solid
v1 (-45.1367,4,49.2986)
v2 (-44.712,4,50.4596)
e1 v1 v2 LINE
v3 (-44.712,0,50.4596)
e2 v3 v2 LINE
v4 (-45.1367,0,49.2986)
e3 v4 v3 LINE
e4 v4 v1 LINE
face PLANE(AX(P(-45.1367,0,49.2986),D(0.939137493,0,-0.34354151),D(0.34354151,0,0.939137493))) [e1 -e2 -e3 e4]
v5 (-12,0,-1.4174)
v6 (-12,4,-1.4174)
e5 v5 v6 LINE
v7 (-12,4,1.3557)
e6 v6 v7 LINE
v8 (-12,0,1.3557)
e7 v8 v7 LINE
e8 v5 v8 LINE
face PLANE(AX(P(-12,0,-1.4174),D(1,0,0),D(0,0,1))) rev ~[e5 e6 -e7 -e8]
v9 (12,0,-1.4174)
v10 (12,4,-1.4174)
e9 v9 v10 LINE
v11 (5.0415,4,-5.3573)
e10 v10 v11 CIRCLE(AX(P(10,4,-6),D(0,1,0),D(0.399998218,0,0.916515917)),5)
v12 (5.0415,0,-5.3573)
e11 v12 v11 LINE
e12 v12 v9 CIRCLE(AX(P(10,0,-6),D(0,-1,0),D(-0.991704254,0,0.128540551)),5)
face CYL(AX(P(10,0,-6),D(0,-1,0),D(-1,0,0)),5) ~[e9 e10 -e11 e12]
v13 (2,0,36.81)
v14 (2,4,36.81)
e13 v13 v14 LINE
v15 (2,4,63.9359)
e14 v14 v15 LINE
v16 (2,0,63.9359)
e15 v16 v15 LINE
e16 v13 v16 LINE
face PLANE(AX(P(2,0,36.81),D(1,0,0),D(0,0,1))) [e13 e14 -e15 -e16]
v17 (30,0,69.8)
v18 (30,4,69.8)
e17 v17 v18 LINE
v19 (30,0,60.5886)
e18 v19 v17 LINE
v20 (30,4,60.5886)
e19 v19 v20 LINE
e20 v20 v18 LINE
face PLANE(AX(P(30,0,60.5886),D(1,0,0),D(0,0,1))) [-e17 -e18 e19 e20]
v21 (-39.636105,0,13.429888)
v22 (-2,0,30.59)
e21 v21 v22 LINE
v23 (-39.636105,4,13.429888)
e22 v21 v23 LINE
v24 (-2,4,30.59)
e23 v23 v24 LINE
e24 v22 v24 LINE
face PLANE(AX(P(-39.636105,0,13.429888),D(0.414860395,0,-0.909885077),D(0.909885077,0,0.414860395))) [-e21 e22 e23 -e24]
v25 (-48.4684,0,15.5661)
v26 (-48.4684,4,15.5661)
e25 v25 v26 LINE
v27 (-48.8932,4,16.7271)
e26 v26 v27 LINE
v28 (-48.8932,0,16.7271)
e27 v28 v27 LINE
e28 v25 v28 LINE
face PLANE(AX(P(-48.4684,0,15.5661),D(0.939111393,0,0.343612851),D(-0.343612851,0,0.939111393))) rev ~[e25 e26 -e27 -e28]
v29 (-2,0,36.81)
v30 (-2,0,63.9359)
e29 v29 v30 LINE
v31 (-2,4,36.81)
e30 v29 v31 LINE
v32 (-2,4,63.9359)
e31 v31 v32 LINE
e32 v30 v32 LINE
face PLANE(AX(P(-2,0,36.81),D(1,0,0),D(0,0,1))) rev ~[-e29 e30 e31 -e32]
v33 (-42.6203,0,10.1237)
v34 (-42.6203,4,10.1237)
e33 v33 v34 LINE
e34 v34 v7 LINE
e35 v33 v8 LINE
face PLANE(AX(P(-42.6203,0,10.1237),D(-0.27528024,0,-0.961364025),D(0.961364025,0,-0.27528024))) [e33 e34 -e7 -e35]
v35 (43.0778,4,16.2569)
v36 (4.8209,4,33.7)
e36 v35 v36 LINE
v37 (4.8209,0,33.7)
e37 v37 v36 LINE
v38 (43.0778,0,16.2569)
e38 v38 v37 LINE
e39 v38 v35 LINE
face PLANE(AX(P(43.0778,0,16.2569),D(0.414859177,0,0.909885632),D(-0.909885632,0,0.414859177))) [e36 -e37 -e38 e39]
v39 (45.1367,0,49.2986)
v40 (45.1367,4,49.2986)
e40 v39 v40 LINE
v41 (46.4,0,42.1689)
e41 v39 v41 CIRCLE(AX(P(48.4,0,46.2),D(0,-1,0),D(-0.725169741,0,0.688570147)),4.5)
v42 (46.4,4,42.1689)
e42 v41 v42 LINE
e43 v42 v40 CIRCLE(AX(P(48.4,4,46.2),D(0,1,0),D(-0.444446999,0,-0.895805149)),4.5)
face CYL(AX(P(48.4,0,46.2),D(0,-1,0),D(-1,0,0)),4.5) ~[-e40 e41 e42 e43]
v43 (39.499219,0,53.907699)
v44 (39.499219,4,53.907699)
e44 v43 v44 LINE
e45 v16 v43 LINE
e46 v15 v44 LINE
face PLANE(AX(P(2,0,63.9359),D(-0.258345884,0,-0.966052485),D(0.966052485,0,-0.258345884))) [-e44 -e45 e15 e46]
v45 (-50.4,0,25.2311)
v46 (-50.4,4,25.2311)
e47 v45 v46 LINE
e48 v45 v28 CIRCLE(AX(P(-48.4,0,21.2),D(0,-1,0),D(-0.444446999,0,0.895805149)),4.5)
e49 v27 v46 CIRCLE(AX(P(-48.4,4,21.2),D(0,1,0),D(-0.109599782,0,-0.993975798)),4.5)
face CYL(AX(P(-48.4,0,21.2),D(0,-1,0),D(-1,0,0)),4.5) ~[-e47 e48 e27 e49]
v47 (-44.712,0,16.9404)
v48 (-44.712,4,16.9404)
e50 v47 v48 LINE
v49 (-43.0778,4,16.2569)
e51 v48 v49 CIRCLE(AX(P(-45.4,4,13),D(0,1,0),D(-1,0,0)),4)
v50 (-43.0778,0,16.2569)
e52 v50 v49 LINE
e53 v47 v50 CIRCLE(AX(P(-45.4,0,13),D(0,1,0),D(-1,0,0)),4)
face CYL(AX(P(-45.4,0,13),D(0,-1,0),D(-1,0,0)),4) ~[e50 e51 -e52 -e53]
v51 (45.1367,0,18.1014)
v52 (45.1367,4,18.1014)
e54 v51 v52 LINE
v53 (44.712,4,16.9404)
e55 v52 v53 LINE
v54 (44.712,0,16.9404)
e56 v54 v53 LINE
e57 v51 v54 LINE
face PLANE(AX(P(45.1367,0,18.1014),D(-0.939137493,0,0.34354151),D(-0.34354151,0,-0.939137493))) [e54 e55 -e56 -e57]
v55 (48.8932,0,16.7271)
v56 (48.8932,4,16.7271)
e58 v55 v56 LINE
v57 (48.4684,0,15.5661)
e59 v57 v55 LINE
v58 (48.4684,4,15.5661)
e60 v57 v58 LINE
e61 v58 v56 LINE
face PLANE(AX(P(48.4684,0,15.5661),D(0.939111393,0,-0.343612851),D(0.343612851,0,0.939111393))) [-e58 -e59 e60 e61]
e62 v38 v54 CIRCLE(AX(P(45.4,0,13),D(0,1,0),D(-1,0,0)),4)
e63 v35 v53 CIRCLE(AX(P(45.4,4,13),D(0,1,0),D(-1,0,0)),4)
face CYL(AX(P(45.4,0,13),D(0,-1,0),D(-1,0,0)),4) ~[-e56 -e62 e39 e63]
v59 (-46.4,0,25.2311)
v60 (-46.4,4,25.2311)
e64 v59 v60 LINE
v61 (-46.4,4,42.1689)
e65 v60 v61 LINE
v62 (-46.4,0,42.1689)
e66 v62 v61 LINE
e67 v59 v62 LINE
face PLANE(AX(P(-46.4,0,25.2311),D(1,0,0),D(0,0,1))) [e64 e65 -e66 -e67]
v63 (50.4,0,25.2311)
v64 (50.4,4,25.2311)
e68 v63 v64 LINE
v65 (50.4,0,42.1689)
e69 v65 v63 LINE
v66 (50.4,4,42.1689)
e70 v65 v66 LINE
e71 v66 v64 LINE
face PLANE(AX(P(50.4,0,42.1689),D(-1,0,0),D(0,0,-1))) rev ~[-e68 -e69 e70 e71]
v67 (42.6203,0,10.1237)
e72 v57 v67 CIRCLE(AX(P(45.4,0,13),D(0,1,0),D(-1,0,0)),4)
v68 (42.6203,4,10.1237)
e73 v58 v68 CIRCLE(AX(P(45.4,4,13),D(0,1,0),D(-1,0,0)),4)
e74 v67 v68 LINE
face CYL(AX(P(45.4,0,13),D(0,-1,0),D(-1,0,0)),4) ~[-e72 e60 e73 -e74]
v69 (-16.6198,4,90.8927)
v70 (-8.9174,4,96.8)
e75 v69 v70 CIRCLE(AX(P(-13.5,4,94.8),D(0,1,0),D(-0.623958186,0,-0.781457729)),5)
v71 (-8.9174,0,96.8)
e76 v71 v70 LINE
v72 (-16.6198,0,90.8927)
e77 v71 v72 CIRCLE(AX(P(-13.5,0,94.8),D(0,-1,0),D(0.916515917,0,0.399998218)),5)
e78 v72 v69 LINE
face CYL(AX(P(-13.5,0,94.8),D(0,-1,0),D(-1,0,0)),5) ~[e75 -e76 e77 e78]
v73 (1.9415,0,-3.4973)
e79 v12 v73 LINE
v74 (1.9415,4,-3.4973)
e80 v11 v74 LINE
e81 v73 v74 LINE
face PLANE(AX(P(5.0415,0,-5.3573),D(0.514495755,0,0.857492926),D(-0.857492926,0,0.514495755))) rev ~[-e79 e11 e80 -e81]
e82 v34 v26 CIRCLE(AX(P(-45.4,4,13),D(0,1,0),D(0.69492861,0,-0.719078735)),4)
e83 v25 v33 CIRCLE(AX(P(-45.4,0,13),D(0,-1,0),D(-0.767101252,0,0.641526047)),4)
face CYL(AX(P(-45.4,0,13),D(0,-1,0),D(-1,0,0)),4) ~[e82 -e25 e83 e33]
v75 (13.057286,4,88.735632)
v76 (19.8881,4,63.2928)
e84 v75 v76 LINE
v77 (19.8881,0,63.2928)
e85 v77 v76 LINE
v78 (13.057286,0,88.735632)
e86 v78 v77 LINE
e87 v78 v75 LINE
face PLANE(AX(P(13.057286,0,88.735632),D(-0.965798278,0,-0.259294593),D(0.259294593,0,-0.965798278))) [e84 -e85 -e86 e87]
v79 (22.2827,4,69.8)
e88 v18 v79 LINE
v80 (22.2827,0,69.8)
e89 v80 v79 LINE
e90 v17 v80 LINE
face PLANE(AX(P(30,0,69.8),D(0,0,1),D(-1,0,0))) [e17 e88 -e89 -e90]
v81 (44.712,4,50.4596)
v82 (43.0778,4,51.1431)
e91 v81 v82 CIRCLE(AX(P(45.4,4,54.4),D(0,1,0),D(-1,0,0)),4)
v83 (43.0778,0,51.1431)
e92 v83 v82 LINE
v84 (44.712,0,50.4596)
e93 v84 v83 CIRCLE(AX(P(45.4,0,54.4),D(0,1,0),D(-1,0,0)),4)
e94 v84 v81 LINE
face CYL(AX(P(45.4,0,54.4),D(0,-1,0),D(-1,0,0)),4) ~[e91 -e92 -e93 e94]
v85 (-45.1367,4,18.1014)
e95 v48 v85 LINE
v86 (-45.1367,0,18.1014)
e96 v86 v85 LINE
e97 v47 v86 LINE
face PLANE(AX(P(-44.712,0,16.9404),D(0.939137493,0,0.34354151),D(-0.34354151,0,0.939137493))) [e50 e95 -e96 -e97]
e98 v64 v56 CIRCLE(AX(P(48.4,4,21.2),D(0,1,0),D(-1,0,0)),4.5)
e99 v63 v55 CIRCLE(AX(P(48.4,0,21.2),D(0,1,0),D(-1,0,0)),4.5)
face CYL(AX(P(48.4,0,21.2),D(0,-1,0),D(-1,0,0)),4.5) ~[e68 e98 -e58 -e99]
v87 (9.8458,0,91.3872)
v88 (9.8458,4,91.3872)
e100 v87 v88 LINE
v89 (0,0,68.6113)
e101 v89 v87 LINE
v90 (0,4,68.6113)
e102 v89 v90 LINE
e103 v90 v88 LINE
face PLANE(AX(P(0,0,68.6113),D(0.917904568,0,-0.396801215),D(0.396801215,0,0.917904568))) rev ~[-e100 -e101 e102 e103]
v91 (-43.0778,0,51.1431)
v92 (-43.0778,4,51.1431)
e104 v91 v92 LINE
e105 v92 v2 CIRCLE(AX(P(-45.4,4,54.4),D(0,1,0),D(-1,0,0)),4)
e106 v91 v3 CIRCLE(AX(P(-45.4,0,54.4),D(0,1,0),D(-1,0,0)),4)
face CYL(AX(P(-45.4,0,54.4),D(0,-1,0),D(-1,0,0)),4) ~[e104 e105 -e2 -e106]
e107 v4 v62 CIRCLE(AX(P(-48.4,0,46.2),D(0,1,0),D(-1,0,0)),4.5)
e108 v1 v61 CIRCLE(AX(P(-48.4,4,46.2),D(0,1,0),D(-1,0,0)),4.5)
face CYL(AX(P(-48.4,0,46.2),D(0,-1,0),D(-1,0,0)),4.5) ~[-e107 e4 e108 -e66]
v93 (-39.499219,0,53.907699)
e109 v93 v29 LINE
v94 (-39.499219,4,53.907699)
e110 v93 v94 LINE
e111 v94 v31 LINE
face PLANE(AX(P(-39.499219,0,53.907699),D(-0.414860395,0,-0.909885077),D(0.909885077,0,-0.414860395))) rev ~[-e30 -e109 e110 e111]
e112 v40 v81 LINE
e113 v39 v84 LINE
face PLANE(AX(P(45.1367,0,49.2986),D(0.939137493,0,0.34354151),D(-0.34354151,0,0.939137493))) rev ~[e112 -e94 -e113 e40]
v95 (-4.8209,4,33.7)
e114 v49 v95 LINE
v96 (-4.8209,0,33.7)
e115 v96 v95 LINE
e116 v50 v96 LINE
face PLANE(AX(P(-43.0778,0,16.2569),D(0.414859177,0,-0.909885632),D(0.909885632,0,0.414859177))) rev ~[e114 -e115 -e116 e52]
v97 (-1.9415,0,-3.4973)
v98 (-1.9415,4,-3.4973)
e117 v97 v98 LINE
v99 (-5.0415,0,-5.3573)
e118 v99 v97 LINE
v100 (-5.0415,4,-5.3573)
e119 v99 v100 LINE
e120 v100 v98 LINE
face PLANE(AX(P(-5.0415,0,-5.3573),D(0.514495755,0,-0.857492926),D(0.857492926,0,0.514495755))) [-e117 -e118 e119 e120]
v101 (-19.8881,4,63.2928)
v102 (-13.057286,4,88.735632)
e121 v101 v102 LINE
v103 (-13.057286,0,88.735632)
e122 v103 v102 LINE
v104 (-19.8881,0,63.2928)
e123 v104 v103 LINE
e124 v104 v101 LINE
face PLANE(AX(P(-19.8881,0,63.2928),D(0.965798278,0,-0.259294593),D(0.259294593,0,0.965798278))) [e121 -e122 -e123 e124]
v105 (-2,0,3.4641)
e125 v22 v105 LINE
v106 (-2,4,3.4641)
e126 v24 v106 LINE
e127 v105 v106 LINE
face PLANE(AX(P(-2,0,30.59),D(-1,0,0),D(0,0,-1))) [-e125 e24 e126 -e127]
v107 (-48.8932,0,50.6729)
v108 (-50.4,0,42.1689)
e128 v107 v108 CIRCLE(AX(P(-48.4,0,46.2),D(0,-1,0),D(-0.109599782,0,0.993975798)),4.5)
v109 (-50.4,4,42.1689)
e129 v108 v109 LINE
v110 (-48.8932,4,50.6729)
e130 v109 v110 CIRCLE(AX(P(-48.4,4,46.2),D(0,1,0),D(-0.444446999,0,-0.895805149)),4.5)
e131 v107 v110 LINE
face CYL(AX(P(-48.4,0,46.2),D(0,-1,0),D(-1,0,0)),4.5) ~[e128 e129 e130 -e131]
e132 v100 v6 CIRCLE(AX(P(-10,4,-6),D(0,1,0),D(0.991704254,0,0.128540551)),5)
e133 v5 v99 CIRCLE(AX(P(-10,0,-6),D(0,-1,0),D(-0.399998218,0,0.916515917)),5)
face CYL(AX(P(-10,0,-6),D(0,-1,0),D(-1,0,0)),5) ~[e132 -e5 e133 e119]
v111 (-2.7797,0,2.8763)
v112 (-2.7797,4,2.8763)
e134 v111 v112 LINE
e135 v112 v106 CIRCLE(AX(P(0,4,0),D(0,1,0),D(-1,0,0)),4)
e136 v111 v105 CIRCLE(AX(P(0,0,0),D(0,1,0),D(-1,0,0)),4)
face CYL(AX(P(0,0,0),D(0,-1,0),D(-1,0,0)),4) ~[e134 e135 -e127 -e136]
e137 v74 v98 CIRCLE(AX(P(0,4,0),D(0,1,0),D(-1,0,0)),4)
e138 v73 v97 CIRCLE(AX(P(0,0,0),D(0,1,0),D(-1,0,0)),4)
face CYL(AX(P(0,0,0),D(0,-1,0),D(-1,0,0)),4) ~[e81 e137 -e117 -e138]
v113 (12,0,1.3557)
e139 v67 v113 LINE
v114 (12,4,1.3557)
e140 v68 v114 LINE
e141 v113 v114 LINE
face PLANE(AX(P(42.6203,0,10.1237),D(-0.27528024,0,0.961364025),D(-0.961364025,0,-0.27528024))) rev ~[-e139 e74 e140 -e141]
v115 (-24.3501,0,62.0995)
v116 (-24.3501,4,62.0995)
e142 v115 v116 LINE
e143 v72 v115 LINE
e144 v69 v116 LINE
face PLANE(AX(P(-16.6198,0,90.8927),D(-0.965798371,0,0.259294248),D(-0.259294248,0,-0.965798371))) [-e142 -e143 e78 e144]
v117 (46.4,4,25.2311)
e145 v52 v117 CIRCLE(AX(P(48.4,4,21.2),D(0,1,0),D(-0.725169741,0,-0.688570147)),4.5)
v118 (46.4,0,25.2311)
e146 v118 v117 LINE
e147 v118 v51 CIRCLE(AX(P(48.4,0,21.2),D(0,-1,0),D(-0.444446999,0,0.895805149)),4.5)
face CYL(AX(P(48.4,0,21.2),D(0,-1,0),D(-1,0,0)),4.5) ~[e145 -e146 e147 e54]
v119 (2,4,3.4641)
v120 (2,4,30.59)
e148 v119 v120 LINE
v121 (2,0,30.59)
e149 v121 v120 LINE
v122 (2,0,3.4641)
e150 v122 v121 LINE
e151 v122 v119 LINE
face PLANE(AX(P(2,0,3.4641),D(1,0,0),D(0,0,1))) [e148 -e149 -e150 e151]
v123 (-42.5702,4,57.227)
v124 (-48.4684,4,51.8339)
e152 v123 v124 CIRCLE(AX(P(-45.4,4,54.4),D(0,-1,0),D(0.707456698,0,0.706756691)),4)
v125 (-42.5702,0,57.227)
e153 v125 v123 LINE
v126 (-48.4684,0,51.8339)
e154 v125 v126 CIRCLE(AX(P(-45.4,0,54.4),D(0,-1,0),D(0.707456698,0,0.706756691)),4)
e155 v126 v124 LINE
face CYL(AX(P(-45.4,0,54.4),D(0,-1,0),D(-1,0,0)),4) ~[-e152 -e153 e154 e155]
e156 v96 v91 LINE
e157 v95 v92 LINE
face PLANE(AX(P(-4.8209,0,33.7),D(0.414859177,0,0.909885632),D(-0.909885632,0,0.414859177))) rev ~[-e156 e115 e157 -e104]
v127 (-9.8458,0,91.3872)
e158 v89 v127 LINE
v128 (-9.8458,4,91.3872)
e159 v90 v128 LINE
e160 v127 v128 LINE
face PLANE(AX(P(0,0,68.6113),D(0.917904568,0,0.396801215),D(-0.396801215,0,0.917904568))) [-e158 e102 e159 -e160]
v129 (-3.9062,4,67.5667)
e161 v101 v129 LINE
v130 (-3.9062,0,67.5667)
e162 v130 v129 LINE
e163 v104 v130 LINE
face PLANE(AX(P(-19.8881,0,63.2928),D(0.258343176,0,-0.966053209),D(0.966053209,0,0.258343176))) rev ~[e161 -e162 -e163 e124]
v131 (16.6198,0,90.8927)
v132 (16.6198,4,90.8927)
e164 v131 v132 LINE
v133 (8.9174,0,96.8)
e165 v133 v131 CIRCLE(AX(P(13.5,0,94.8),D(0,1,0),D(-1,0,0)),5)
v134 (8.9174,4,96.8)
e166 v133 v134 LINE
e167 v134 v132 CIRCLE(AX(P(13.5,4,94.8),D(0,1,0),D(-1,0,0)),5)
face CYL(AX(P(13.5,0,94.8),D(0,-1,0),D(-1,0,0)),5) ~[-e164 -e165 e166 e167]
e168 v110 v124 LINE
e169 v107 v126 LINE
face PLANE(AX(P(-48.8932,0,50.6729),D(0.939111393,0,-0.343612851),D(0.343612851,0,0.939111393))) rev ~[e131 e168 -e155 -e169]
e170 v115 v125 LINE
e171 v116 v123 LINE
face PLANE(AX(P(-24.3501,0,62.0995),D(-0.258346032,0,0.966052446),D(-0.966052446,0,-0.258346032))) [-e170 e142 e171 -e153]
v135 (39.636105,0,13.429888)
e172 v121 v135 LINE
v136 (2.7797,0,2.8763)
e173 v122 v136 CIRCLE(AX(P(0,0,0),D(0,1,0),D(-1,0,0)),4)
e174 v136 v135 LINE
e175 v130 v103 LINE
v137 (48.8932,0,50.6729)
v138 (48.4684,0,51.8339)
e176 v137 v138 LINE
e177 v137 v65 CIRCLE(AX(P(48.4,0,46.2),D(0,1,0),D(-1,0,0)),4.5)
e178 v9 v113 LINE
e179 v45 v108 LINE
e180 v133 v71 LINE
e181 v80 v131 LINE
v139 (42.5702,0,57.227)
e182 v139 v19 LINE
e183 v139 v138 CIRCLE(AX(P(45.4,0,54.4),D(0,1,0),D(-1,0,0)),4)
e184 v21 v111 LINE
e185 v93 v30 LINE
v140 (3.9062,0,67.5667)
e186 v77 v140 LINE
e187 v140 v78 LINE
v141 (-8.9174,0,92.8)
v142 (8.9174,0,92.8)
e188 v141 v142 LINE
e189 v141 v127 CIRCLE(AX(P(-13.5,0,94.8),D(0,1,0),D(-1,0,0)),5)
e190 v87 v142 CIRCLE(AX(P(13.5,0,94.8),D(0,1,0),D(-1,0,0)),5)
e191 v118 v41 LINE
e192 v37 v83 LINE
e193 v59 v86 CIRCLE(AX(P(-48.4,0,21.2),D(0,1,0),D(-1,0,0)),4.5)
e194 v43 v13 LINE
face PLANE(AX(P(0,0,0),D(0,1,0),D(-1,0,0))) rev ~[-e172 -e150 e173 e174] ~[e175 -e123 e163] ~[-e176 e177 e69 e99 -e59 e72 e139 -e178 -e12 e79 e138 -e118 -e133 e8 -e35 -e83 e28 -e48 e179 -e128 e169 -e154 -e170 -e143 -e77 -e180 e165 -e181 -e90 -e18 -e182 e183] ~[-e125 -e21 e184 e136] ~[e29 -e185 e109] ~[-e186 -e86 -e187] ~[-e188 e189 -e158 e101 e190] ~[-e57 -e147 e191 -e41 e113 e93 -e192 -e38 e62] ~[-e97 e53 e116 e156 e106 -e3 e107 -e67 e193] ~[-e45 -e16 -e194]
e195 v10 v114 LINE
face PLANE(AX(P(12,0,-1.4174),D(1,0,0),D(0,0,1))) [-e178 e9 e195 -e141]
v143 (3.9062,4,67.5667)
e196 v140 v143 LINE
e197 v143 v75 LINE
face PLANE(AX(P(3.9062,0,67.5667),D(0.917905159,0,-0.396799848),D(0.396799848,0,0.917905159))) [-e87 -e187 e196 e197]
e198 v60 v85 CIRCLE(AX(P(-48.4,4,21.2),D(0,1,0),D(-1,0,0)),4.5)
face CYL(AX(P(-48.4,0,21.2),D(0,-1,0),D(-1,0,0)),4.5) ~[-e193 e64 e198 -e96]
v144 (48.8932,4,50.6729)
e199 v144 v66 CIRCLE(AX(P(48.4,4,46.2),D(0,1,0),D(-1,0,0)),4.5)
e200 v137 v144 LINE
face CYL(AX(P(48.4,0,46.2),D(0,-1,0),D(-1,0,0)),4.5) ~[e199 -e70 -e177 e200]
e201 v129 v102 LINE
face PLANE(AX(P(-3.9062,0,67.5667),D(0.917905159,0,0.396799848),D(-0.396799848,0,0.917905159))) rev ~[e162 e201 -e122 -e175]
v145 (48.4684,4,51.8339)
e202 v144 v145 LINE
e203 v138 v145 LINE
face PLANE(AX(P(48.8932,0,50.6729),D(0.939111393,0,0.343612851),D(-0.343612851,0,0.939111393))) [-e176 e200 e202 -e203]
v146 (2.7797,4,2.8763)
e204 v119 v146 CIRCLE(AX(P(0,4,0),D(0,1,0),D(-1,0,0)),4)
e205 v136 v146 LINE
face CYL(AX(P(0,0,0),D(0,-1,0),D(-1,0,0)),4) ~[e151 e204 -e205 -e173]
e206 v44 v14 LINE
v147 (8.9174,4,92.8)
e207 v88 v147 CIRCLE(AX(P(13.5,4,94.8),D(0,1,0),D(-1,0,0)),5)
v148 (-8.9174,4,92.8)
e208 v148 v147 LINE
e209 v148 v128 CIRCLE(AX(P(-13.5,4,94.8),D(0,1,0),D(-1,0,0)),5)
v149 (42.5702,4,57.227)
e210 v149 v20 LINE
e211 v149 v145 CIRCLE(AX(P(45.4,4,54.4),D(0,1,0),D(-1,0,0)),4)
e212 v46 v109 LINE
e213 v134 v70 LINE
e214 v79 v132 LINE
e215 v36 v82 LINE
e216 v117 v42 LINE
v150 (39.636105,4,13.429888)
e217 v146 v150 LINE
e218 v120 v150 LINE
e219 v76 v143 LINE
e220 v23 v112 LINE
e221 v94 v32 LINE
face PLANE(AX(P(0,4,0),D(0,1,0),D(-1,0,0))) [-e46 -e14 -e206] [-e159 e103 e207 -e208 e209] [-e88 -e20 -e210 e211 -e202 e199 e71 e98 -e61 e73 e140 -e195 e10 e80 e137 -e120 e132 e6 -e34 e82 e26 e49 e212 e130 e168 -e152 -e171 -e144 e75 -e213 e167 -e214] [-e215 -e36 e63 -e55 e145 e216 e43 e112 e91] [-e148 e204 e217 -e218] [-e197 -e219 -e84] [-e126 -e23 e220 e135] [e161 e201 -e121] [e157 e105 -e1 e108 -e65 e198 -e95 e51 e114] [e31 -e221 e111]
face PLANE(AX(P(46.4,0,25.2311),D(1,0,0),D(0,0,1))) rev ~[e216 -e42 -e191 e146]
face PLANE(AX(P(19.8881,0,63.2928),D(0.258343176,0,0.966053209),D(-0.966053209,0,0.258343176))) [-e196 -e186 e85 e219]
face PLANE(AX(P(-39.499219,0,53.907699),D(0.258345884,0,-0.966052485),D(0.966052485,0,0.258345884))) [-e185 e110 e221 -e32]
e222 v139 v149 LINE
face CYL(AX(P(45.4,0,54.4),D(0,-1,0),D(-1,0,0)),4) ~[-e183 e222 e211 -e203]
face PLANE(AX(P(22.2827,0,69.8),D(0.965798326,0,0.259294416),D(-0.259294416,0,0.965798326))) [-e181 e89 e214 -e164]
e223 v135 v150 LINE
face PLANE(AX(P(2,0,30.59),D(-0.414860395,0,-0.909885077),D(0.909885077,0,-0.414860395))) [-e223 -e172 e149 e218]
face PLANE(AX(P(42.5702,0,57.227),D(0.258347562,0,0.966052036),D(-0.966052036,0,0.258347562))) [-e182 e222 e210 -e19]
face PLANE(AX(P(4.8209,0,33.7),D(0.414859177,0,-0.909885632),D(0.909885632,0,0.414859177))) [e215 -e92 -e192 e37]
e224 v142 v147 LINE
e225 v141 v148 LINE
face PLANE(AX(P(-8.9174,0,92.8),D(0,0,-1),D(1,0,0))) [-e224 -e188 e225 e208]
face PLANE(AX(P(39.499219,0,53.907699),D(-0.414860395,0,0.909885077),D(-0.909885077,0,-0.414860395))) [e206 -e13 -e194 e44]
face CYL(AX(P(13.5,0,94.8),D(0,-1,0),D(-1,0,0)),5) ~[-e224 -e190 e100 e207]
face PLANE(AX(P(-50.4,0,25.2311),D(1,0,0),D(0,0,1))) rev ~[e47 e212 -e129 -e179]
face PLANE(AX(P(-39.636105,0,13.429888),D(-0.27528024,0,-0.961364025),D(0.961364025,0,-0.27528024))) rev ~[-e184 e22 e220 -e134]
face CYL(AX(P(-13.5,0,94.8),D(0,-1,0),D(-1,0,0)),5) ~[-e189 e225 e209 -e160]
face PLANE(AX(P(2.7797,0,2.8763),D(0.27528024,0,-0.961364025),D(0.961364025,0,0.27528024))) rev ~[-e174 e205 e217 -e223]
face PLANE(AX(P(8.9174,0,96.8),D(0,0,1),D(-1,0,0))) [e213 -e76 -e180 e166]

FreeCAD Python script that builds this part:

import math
import FreeCAD as App
import Part
import Sketcher
from FreeCAD import Vector
Q = App.Units.Quantity


def add_polygon(sketch, points):
    """Adds a closed chain of lines whose ends are joined by coincident constraints."""
    first, n = sketch.GeometryCount, len(points)
    for a, b in zip(points, points[1:] + points[:1]):
        sketch.addGeometry(Part.LineSegment(App.Vector(*a, 0), App.Vector(*b, 0)), False)
    for i in range(n):
        sketch.addConstraint(Sketcher.Constraint("Coincident", first + i, 2, first + (i + 1) % n, 1))

doc = App.newDocument("Part")
params = doc.addObject("Spreadsheet::Sheet", "Params")
for row, (alias, value) in enumerate([
    ("sketch1_radius", "4 mm"),
    ("sketch1_radius2", "5 mm"),
    ("sketch1_radius3", "4.5 mm"),
    ("pad1_length", "4 mm"),
], start=1):
    params.set(f"A{row}", alias)
    params.set(f"B{row}", "=" + value)
    params.setAlias(f"B{row}", alias)

body = doc.addObject("PartDesign::Body", "Body")

# Sketch on XZ plane
sketch1 = body.newObject("Sketcher::SketchObject", "Sketch")
sketch1.AttachmentSupport = (doc.getObject("XZ_Plane"), [""])
sketch1.MapMode = "FlatFace"
sketch1.addGeometry(Part.ArcOfCircle(Part.Circle(Vector(-45.4, 54.4, 0), Vector(0, 0, 1), 4), math.radians(44.97164), math.radians(219.905707)), False)  # 0
sketch1.addGeometry(Part.LineSegment(Vector(-42.5702, 57.227, 0), Vector(-24.3501, 62.0995, 0)), False)  # 1
sketch1.addGeometry(Part.LineSegment(Vector(-24.3501, 62.0995, 0), Vector(-16.6198, 90.8927, 0)), False)  # 2
sketch1.addGeometry(Part.ArcOfCircle(Part.Circle(Vector(-13.5, 94.8, 0), Vector(0, 0, 1), 5), math.radians(23.578067), math.radians(231.394238)), False)  # 3
sketch1.addGeometry(Part.LineSegment(Vector(-8.9174, 96.8, 0), Vector(8.9174, 96.8, 0)), False)  # 4
sketch1.addGeometry(Part.ArcOfCircle(Part.Circle(Vector(13.5, 94.8, 0), Vector(0, 0, 1), 5), math.radians(-51.394238), math.radians(156.421933)), False)  # 5
sketch1.addGeometry(Part.LineSegment(Vector(16.6198, 90.8927, 0), Vector(22.2827, 69.8, 0)), False)  # 6
sketch1.addGeometry(Part.LineSegment(Vector(22.2827, 69.8, 0), Vector(30, 69.8, 0)), False)  # 7
sketch1.addGeometry(Part.LineSegment(Vector(30, 69.8, 0), Vector(30, 60.5886, 0)), False)  # 8
sketch1.addGeometry(Part.LineSegment(Vector(30, 60.5886, 0), Vector(42.5702, 57.227, 0)), False)  # 9
sketch1.addGeometry(Part.ArcOfCircle(Part.Circle(Vector(45.4, 54.4, 0), Vector(0, 0, 1), 4), math.radians(-39.905707), math.radians(135.02836)), False)  # 10
sketch1.addGeometry(Part.LineSegment(Vector(48.4684, 51.8339, 0), Vector(48.8932, 50.6729, 0)), False)  # 11
sketch1.addGeometry(Part.ArcOfCircle(Part.Circle(Vector(48.4, 46.2, 0), Vector(0, 0, 1), 4.5), math.radians(-63.612037), math.radians(83.707755)), False)  # 12
sketch1.addGeometry(Part.LineSegment(Vector(50.4, 42.1689, 0), Vector(50.4, 25.2311, 0)), False)  # 13
sketch1.addGeometry(Part.ArcOfCircle(Part.Circle(Vector(48.4, 21.2, 0), Vector(0, 0, 1), 4.5), math.radians(-83.707755), math.radians(63.612037)), False)  # 14
sketch1.addGeometry(Part.LineSegment(Vector(48.8932, 16.7271, 0), Vector(48.4684, 15.5661, 0)), False)  # 15
sketch1.addGeometry(Part.ArcOfCircle(Part.Circle(Vector(45.4, 13, 0), Vector(0, 0, 1), 4), math.radians(-134.021529), math.radians(39.905707)), False)  # 16
sketch1.addGeometry(Part.LineSegment(Vector(42.6203, 10.1237, 0), Vector(11.999979, 1.355773, 0)), False)  # 17
sketch1.addGeometry(Part.LineSegment(Vector(12, 1.3557, 0), Vector(12, -1.4174, 0)), False)  # 18
sketch1.addGeometry(Part.ArcOfCircle(Part.Circle(Vector(10, -6, 0), Vector(0, 0, 1), 5), math.radians(172.614735), math.radians(426.421933)), False)  # 19
sketch1.addGeometry(Part.LineSegment(Vector(5.0415, -5.3573, 0), Vector(1.9415, -3.4973, 0)), False)  # 20
sketch1.addGeometry(Part.ArcOfCircle(Part.Circle(Vector(0, 0, 0), Vector(0, 0, 1), 4), math.radians(-119.036518), math.radians(-60.963482)), False)  # 21
sketch1.addGeometry(Part.LineSegment(Vector(-1.9415, -3.4973, 0), Vector(-5.0415, -5.3573, 0)), False)  # 22
sketch1.addGeometry(Part.ArcOfCircle(Part.Circle(Vector(-10, -6, 0), Vector(0, 0, 1), 5), math.radians(113.578067), math.radians(367.385265)), False)  # 23
sketch1.addGeometry(Part.LineSegment(Vector(-12, -1.4174, 0), Vector(-12, 1.3557, 0)), False)  # 24
sketch1.addGeometry(Part.LineSegment(Vector(-11.999979, 1.355773, 0), Vector(-42.6203, 10.1237, 0)), False)  # 25
sketch1.addGeometry(Part.ArcOfCircle(Part.Circle(Vector(-45.4, 13, 0), Vector(0, 0, 1), 4), math.radians(140.094293), math.radians(314.021529)), False)  # 26
sketch1.addGeometry(Part.LineSegment(Vector(-48.4684, 15.5661, 0), Vector(-48.8932, 16.7271, 0)), False)  # 27
sketch1.addGeometry(Part.ArcOfCircle(Part.Circle(Vector(-48.4, 21.2, 0), Vector(0, 0, 1), 4.5), math.radians(116.387963), math.radians(263.707755)), False)  # 28
sketch1.addGeometry(Part.LineSegment(Vector(-50.4, 25.2311, 0), Vector(-50.4, 42.1689, 0)), False)  # 29
sketch1.addGeometry(Part.ArcOfCircle(Part.Circle(Vector(-48.4, 46.2, 0), Vector(0, 0, 1), 4.5), math.radians(96.292245), math.radians(243.612037)), False)  # 30
sketch1.addGeometry(Part.LineSegment(Vector(-48.8932, 50.6729, 0), Vector(-48.4684, 51.8339, 0)), False)  # 31
sketch1.addGeometry(Part.ArcOfCircle(Part.Circle(Vector(-45.4, 54.4, 0), Vector(0, 0, 1), 4), math.radians(-80.095906), math.radians(-54.510777)), False)  # 32
sketch1.addGeometry(Part.LineSegment(Vector(-44.712, 50.4596, 0), Vector(-45.1367, 49.2986, 0)), False)  # 33
sketch1.addGeometry(Part.ArcOfCircle(Part.Circle(Vector(-48.4, 46.2, 0), Vector(0, 0, 1), 4.5), math.radians(-63.612037), math.radians(43.51703)), False)  # 34
sketch1.addGeometry(Part.LineSegment(Vector(-46.4, 42.1689, 0), Vector(-46.4, 25.2311, 0)), False)  # 35
sketch1.addGeometry(Part.ArcOfCircle(Part.Circle(Vector(-48.4, 21.2, 0), Vector(0, 0, 1), 4.5), math.radians(-43.51703), math.radians(63.612037)), False)  # 36
sketch1.addGeometry(Part.LineSegment(Vector(-45.1367, 18.1014, 0), Vector(-44.712, 16.9404, 0)), False)  # 37
sketch1.addGeometry(Part.ArcOfCircle(Part.Circle(Vector(-45.4, 13, 0), Vector(0, 0, 1), 4), math.radians(54.510777), math.radians(80.095906)), False)  # 38
sketch1.addGeometry(Part.LineSegment(Vector(-43.0778, 16.2569, 0), Vector(-4.8209, 33.7, 0)), False)  # 39
sketch1.addGeometry(Part.LineSegment(Vector(-4.8209, 33.7, 0), Vector(-43.0778, 51.1431, 0)), False)  # 40
add_polygon(sketch1, [(-19.8881, 63.2928), (-3.9062, 67.5667), (-13.057286, 88.735632)])  # lines 41-43
sketch1.addGeometry(Part.LineSegment(Vector(-2, 30.59, 0), Vector(-39.636105, 13.429888, 0)), False)  # 44
sketch1.addGeometry(Part.LineSegment(Vector(-39.636105, 13.429888, 0), Vector(-2.7797, 2.8763, 0)), False)  # 45
sketch1.addGeometry(Part.ArcOfCircle(Part.Circle(Vector(0, 0, 0), Vector(0, 0, 1), 4), math.radians(120.000012), math.radians(134.021529)), False)  # 46
sketch1.addGeometry(Part.LineSegment(Vector(-2, 3.4641, 0), Vector(-2, 30.59, 0)), False)  # 47
sketch1.addGeometry(Part.LineSegment(Vector(2, 30.59, 0), Vector(2, 3.4641, 0)), False)  # 48
sketch1.addGeometry(Part.ArcOfCircle(Part.Circle(Vector(0, 0, 0), Vector(0, 0, 1), 4), math.radians(45.978471), math.radians(59.999988)), False)  # 49
sketch1.addGeometry(Part.LineSegment(Vector(2.7797, 2.8763, 0), Vector(39.636105, 13.429888, 0)), False)  # 50
sketch1.addGeometry(Part.LineSegment(Vector(39.636105, 13.429888, 0), Vector(2, 30.59, 0)), False)  # 51
sketch1.addGeometry(Part.LineSegment(Vector(4.8209, 33.7, 0), Vector(43.0778, 16.2569, 0)), False)  # 52
sketch1.addGeometry(Part.ArcOfCircle(Part.Circle(Vector(45.4, 13, 0), Vector(0, 0, 1), 4), math.radians(99.904094), math.radians(125.489223)), False)  # 53
sketch1.addGeometry(Part.LineSegment(Vector(44.712, 16.9404, 0), Vector(45.1367, 18.1014, 0)), False)  # 54
sketch1.addGeometry(Part.ArcOfCircle(Part.Circle(Vector(48.4, 21.2, 0), Vector(0, 0, 1), 4.5), math.radians(116.387963), math.radians(223.51703)), False)  # 55
sketch1.addGeometry(Part.LineSegment(Vector(46.4, 25.2311, 0), Vector(46.4, 42.1689, 0)), False)  # 56
sketch1.addGeometry(Part.ArcOfCircle(Part.Circle(Vector(48.4, 46.2, 0), Vector(0, 0, 1), 4.5), math.radians(136.48297), math.radians(243.612037)), False)  # 57
sketch1.addGeometry(Part.LineSegment(Vector(45.1367, 49.2986, 0), Vector(44.712, 50.4596, 0)), False)  # 58
sketch1.addGeometry(Part.ArcOfCircle(Part.Circle(Vector(45.4, 54.4, 0), Vector(0, 0, 1), 4), math.radians(-125.489223), math.radians(-99.904094)), False)  # 59
sketch1.addGeometry(Part.LineSegment(Vector(43.0778, 51.1431, 0), Vector(4.8209, 33.7, 0)), False)  # 60
sketch1.addGeometry(Part.LineSegment(Vector(0, 68.6113, 0), Vector(9.8458, 91.3872, 0)), False)  # 61
sketch1.addGeometry(Part.ArcOfCircle(Part.Circle(Vector(13.5, 94.8, 0), Vector(0, 0, 1), 5), math.radians(-156.421933), math.radians(-136.956392)), False)  # 62
sketch1.addGeometry(Part.LineSegment(Vector(8.9174, 92.8, 0), Vector(-8.9174, 92.8, 0)), False)  # 63
sketch1.addGeometry(Part.ArcOfCircle(Part.Circle(Vector(-13.5, 94.8, 0), Vector(0, 0, 1), 5), math.radians(-43.043608), math.radians(-23.578067)), False)  # 64
sketch1.addGeometry(Part.LineSegment(Vector(-9.8458, 91.3872, 0), Vector(0, 68.6113, 0)), False)  # 65
add_polygon(sketch1, [(2, 36.81), (39.499219, 53.907699), (2, 63.9359)])  # lines 66-68
add_polygon(sketch1, [(19.8881, 63.2928), (13.057286, 88.735632), (3.9062, 67.5667)])  # lines 69-71
add_polygon(sketch1, [(-2, 63.9359), (-39.499219, 53.907699), (-2, 36.81)])  # lines 72-74
sketch1.addConstraint([
    Sketcher.Constraint("Coincident", 0, 1, 1, 1),
    Sketcher.Constraint("Coincident", 1, 2, 2, 1),
    Sketcher.Constraint("Coincident", 2, 2, 3, 2),
    Sketcher.Constraint("Coincident", 3, 1, 4, 1),
    Sketcher.Constraint("Coincident", 4, 2, 5, 2),
    Sketcher.Constraint("Coincident", 5, 1, 6, 1),
    Sketcher.Constraint("Coincident", 6, 2, 7, 1),
    Sketcher.Constraint("Coincident", 7, 2, 8, 1),
    Sketcher.Constraint("Coincident", 8, 2, 9, 1),
    Sketcher.Constraint("Coincident", 9, 2, 10, 2),
    Sketcher.Constraint("Coincident", 10, 1, 11, 1),
    Sketcher.Constraint("Coincident", 11, 2, 12, 2),
    Sketcher.Constraint("Coincident", 12, 1, 13, 1),
    Sketcher.Constraint("Coincident", 13, 2, 14, 2),
    Sketcher.Constraint("Coincident", 14, 1, 15, 1),
    Sketcher.Constraint("Coincident", 15, 2, 16, 2),
    Sketcher.Constraint("Coincident", 16, 1, 17, 1),
    Sketcher.Constraint("Coincident", 17, 2, 18, 1),
    Sketcher.Constraint("Coincident", 18, 2, 19, 2),
    Sketcher.Constraint("Coincident", 19, 1, 20, 1),
    Sketcher.Constraint("Coincident", 20, 2, 21, 2),
    Sketcher.Constraint("Coincident", 21, 1, 22, 1),
    Sketcher.Constraint("Coincident", 22, 2, 23, 2),
    Sketcher.Constraint("Coincident", 23, 1, 24, 1),
    Sketcher.Constraint("Coincident", 24, 2, 25, 1),
    Sketcher.Constraint("Coincident", 25, 2, 26, 2),
    Sketcher.Constraint("Coincident", 26, 1, 27, 1),
    Sketcher.Constraint("Coincident", 27, 2, 28, 2),
    Sketcher.Constraint("Coincident", 28, 1, 29, 1),
    Sketcher.Constraint("Coincident", 29, 2, 30, 2),
    Sketcher.Constraint("Coincident", 30, 1, 31, 1),
    Sketcher.Constraint("Coincident", 31, 2, 0, 2),
    Sketcher.Constraint("Coincident", 32, 1, 33, 1),
    Sketcher.Constraint("Coincident", 33, 2, 34, 2),
    Sketcher.Constraint("Coincident", 34, 1, 35, 1),
    Sketcher.Constraint("Coincident", 35, 2, 36, 2),
    Sketcher.Constraint("Coincident", 36, 1, 37, 1),
    Sketcher.Constraint("Coincident", 37, 2, 38, 2),
    Sketcher.Constraint("Coincident", 38, 1, 39, 1),
    Sketcher.Constraint("Coincident", 39, 2, 40, 1),
    Sketcher.Constraint("Coincident", 40, 2, 32, 2),
    Sketcher.Constraint("Coincident", 44, 2, 45, 1),
    Sketcher.Constraint("Coincident", 45, 2, 46, 2),
    Sketcher.Constraint("Coincident", 46, 1, 47, 1),
    Sketcher.Constraint("Coincident", 47, 2, 44, 1),
    Sketcher.Constraint("Coincident", 48, 2, 49, 2),
    Sketcher.Constraint("Coincident", 49, 1, 50, 1),
    Sketcher.Constraint("Coincident", 50, 2, 51, 1),
    Sketcher.Constraint("Coincident", 51, 2, 48, 1),
    Sketcher.Constraint("Coincident", 52, 2, 53, 2),
    Sketcher.Constraint("Coincident", 53, 1, 54, 1),
    Sketcher.Constraint("Coincident", 54, 2, 55, 2),
    Sketcher.Constraint("Coincident", 55, 1, 56, 1),
    Sketcher.Constraint("Coincident", 56, 2, 57, 2),
    Sketcher.Constraint("Coincident", 57, 1, 58, 1),
    Sketcher.Constraint("Coincident", 58, 2, 59, 2),
    Sketcher.Constraint("Coincident", 59, 1, 60, 1),
    Sketcher.Constraint("Coincident", 60, 2, 52, 1),
    Sketcher.Constraint("Coincident", 61, 2, 62, 2),
    Sketcher.Constraint("Coincident", 62, 1, 63, 1),
    Sketcher.Constraint("Coincident", 63, 2, 64, 2),
    Sketcher.Constraint("Coincident", 64, 1, 65, 1),
    Sketcher.Constraint("Coincident", 65, 2, 61, 1),
    Sketcher.Constraint("Horizontal", 4),
    Sketcher.Constraint("Horizontal", 7),
    Sketcher.Constraint("Vertical", 8),
    Sketcher.Constraint("Vertical", 13),
    Sketcher.Constraint("Vertical", 18),
    Sketcher.Constraint("Vertical", 24),
    Sketcher.Constraint("Vertical", 29),
    Sketcher.Constraint("Vertical", 35),
    Sketcher.Constraint("Vertical", 47),
    Sketcher.Constraint("Vertical", 48),
    Sketcher.Constraint("Vertical", 56),
    Sketcher.Constraint("Horizontal", 63),
    Sketcher.Constraint("Vertical", 68),
    Sketcher.Constraint("Vertical", 74),
    Sketcher.Constraint("Coincident", 21, 3, -1, 1),
    Sketcher.Constraint("Coincident", 46, 3, -1, 1),
    Sketcher.Constraint("Coincident", 49, 3, -1, 1),
    Sketcher.Constraint("Coincident", 32, 3, 0, 3),
    Sketcher.Constraint("Coincident", 34, 3, 30, 3),
    Sketcher.Constraint("Coincident", 36, 3, 28, 3),
    Sketcher.Constraint("Coincident", 38, 3, 26, 3),
    Sketcher.Constraint("Coincident", 53, 3, 16, 3),
    Sketcher.Constraint("Coincident", 55, 3, 14, 3),
    Sketcher.Constraint("Coincident", 57, 3, 12, 3),
    Sketcher.Constraint("Coincident", 59, 3, 10, 3),
    Sketcher.Constraint("Coincident", 62, 3, 5, 3),
    Sketcher.Constraint("Coincident", 64, 3, 3, 3),
    Sketcher.Constraint("Equal", 3, 5),
    Sketcher.Constraint("Equal", 0, 10),
    Sketcher.Constraint("Equal", 12, 14),
    Sketcher.Constraint("Equal", 10, 16),
    Sketcher.Constraint("Equal", 5, 19),
    Sketcher.Constraint("Equal", 16, 21),
    Sketcher.Constraint("Equal", 19, 23),
    Sketcher.Constraint("Equal", 21, 26),
    Sketcher.Constraint("Equal", 14, 28),
    Sketcher.Constraint("Equal", 28, 30),
    Sketcher.Constraint("Equal", 26, 32),
    Sketcher.Constraint("Equal", 30, 34),
    Sketcher.Constraint("Equal", 34, 36),
    Sketcher.Constraint("Equal", 32, 38),
    Sketcher.Constraint("Equal", 38, 46),
    Sketcher.Constraint("Equal", 46, 49),
    Sketcher.Constraint("Equal", 49, 53),
    Sketcher.Constraint("Equal", 36, 55),
    Sketcher.Constraint("Equal", 55, 57),
    Sketcher.Constraint("Equal", 53, 59),
    Sketcher.Constraint("Equal", 23, 62),
    Sketcher.Constraint("Equal", 62, 64),
    Sketcher.Constraint("Symmetric", 3, 3, 5, 3, -2),
    Sketcher.Constraint("Symmetric", 0, 3, 10, 3, -2),
    Sketcher.Constraint("Symmetric", 19, 3, 23, 3, -2),
    Sketcher.Constraint("Symmetric", 16, 3, 26, 3, -2),
    Sketcher.Constraint("Symmetric", 14, 3, 28, 3, -2),
    Sketcher.Constraint("Symmetric", 12, 3, 30, 3, -2),
    Sketcher.Constraint("Symmetric", 17, 2, 24, 2, -2),
    Sketcher.Constraint("Symmetric", 44, 2, 50, 2, -2),
    Sketcher.Constraint("Symmetric", 47, 2, 51, 2, -2),
    Sketcher.Constraint("Symmetric", 39, 2, 60, 2, -2),
    Sketcher.Constraint("Symmetric", 42, 2, 69, 2, -2),
    Sketcher.Constraint("Symmetric", 41, 2, 70, 2, -2),
    Sketcher.Constraint("Symmetric", 43, 2, 71, 2, -2),
    Sketcher.Constraint("Symmetric", 66, 2, 72, 2, -2),
    Sketcher.Constraint("Symmetric", 68, 2, 73, 2, -2),
    Sketcher.Constraint("PointOnObject", 65, 2, -2),
    Sketcher.Constraint("Parallel", 11, 27),
    Sketcher.Constraint("Parallel", 15, 31),
    Sketcher.Constraint("Parallel", 31, 33),
    Sketcher.Constraint("Parallel", 27, 37),
    Sketcher.Constraint("Parallel", 1, 41),
    Sketcher.Constraint("Parallel", 2, 43),
    Sketcher.Constraint("Parallel", 39, 44),
    Sketcher.Constraint("Parallel", 25, 45),
    Sketcher.Constraint("Parallel", 17, 50),
    Sketcher.Constraint("Parallel", 40, 51),
    Sketcher.Constraint("Parallel", 51, 52),
    Sketcher.Constraint("Parallel", 33, 54),
    Sketcher.Constraint("Parallel", 37, 58),
    Sketcher.Constraint("Parallel", 44, 60),
    Sketcher.Constraint("Parallel", 42, 65),
    Sketcher.Constraint("Parallel", 60, 66),
    Sketcher.Constraint("Parallel", 9, 67),
    Sketcher.Constraint("Parallel", 6, 69),
    Sketcher.Constraint("Parallel", 61, 70),
    Sketcher.Constraint("Parallel", 67, 71),
    Sketcher.Constraint("Parallel", 41, 72),
    Sketcher.Constraint("Horizontal", 2, 2, 5, 1),
    Sketcher.Constraint("Horizontal", 0, 1, 9, 2),
    Sketcher.Constraint("Horizontal", 20, 2, 21, 1),
    Sketcher.Constraint("Horizontal", 19, 1, 22, 2),
    Sketcher.Constraint("Horizontal", 16, 1, 25, 2),
    Sketcher.Constraint("Horizontal", 15, 2, 26, 1),
    Sketcher.Constraint("Horizontal", 14, 1, 27, 2),
    Sketcher.Constraint("Horizontal", 13, 2, 28, 1),
    Sketcher.Constraint("Horizontal", 11, 2, 30, 1),
    Sketcher.Constraint("Horizontal", 29, 2, 34, 1),
    Sketcher.Constraint("Horizontal", 28, 1, 35, 2),
    Sketcher.Constraint("Horizontal", 37, 2, 53, 1),
    Sketcher.Constraint("Horizontal", 35, 2, 55, 1),
    Sketcher.Constraint("Horizontal", 33, 2, 57, 1),
    Sketcher.Constraint("Vertical", 10, 3, 16, 3),
    Sketcher.Constraint("Vertical", 11, 2, 14, 1),
    Sketcher.Constraint("Vertical", 10, 1, 15, 2),
    Sketcher.Constraint("Vertical", 33, 2, 36, 1),
    Sketcher.Constraint("Vertical", 38, 1, 40, 2),
    Sketcher.Constraint("Vertical", 4, 2, 62, 1),
    Sketcher.Constraint("Vertical", 51, 2, 67, 2),
    Sketcher.Constraint("Equal", 48, 68),
    Sketcher.Constraint("Equal", 31, 33),
    Sketcher.Constraint("Radius", 0, 4.0),
    Sketcher.Constraint("Radius", 3, 5.0),
    Sketcher.Constraint("Radius", 12, 4.5),
    Sketcher.Constraint("DistanceY", -1, 1, 16, 3, 13.0),
    Sketcher.Constraint("DistanceX", -1, 1, 19, 3, 10.0),
    Sketcher.Constraint("DistanceX", -1, 1, 7, 2, 30.0),
    Sketcher.Constraint("DistanceX", 46, 1, -1, 1, 2.0),
    Sketcher.Constraint("DistanceX", 0, 3, -1, 1, 45.4),
    Sketcher.Constraint("DistanceY", -1, 1, 6, 2, 69.8),
    Sketcher.Constraint("DistanceY", 19, 3, -1, 1, 6.0),
    Sketcher.Constraint("DistanceX", -1, 1, 17, 2, 12.0),
    Sketcher.Constraint("DistanceY", -1, 1, 0, 3, 54.4),
    Sketcher.Constraint("DistanceX", 3, 3, -1, 1, 13.5),
    Sketcher.Constraint("DistanceY", -1, 1, 3, 3, 94.8),
    Sketcher.Constraint("DistanceX", -1, 1, 12, 3, 48.4),
    Sketcher.Constraint("DistanceY", -1, 1, 12, 3, 46.2),
    Sketcher.Constraint("DistanceY", -1, 1, 3, 1, 96.8),
    Sketcher.Constraint("DistanceX", -1, 1, 12, 1, 50.4),
    Sketcher.Constraint("Angle", 39, Q("24.5104 deg")),
    Sketcher.Constraint("DistanceY", 18, 2, 18, 1, 2.773),
    Sketcher.Constraint("DistanceY", 47, 1, 47, 2, 27.126),
    Sketcher.Constraint("DistanceX", 1, 2, -1, 1, 24.35),
    Sketcher.Constraint("DistanceY", -1, 1, 44, 2, 13.43),
    Sketcher.Constraint("DistanceY", -1, 1, 68, 2, 36.81),
    Sketcher.Constraint("Distance", 9, 13.012),
    Sketcher.Constraint("Distance", 17, 31.851),
    Sketcher.Constraint("Distance", 61, 24.813),
    Sketcher.Constraint("Distance", 67, 38.817),
    Sketcher.Constraint("DistanceX", 7, 1, 7, 2, 7.7173),
    Sketcher.Constraint("DistanceY", -1, 1, 10, 1, 51.834),
    Sketcher.Constraint("DistanceY", -1, 1, 11, 2, 50.673),
    Sketcher.Constraint("DistanceY", -1, 1, 38, 1, 16.257),
    Sketcher.Constraint("DistanceX", 43, 2, -1, 1, 19.888),
    Sketcher.Constraint("Distance", 20, 3.6152),
    Sketcher.Constraint("Distance", 41, 16.5435),
    Sketcher.Constraint("Distance", 42, 23.0622),
    Sketcher.Constraint("DistanceX", -1, 1, 19, 1, 5.0415),
    Sketcher.Constraint("DistanceY", -1, 1, 41, 2, 67.5667),
])
sketch1.setExpression("Constraints[184]", "Params.sketch1_radius")
sketch1.setExpression("Constraints[185]", "Params.sketch1_radius2")
sketch1.setExpression("Constraints[186]", "Params.sketch1_radius3")
pad1 = body.newObject("PartDesign::Pad", "Pad")
pad1.Profile = sketch1
pad1.setExpression("Length", "Params.pad1_length")
pad1.Reversed = True

doc.recompute()
